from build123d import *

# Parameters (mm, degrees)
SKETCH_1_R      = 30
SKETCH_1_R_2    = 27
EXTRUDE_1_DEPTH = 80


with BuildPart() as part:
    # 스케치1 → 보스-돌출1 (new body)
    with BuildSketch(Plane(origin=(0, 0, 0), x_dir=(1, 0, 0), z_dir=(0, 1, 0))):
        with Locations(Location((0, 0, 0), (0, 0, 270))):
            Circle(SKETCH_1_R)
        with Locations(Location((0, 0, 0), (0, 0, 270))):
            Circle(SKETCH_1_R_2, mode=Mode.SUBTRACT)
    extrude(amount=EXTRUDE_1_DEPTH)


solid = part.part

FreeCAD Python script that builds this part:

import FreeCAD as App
import Part
import Sketcher

V = App.Vector

doc = App.newDocument("Part")
params = doc.addObject("Spreadsheet::Sheet", "Params")
for row, (alias, value) in enumerate([
    ("sketch1_diameter", "60 mm"),
    ("sketch1_diameter2", "54 mm"),
    ("pad1_length", "80 mm"),
], start=1):
    params.set(f"A{row}", alias)
    params.set(f"B{row}", "=" + value)
    params.setAlias(f"B{row}", alias)

body = doc.addObject("PartDesign::Body", "Body")

sketch1 = body.newObject("Sketcher::SketchObject", "Sketch")
sketch1.AttachmentSupport = (doc.getObject("XZ_Plane"), [""])
sketch1.MapMode = "FlatFace"
sketch1.addGeometry([
    Part.Circle(V(0, 0, 0), V(0, 0, 1), 30),
    Part.Circle(V(0, 0, 0), V(0, 0, 1), 27),
], False)
sketch1.addConstraint([
    Sketcher.Constraint("Coincident", 0, 3, -1, 1),
    Sketcher.Constraint("Coincident", 1, 3, -1, 1),
    Sketcher.Constraint("Diameter", 0, 60.0),
    Sketcher.Constraint("Diameter", 1, 54.0),
])
sketch1.setExpression("Constraints[2]", "Params.sketch1_diameter")
sketch1.setExpression("Constraints[3]", "Params.sketch1_diameter2")
pad1 = body.newObject("PartDesign::Pad", "Pad")
pad1.Profile = sketch1
pad1.setExpression("Length", "Params.pad1_length")
pad1.Reversed = True

doc.recompute()
